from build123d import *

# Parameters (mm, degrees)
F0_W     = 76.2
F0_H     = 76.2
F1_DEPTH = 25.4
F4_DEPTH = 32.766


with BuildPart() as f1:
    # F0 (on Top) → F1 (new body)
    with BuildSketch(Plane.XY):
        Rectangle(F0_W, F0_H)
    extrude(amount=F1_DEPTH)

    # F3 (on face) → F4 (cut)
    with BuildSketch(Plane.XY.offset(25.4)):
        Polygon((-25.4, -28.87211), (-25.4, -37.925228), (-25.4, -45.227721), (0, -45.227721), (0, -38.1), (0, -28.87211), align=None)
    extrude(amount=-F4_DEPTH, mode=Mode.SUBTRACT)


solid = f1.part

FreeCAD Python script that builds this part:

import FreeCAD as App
import Part
import Sketcher
Q = App.Units.Quantity

doc = App.newDocument("Part")
body = doc.addObject("PartDesign::Body", "Body")

# Sketch on XY plane
sketch1 = doc.addObject("Sketcher::SketchObject", "Sketch")
body.addObject(sketch1)
sketch1.AttachmentSupport = (doc.XY_Plane, [""])
sketch1.MapMode = "FlatFace"
sketch1.addGeometry(Part.LineSegment(App.Vector(-38, 38, 0), App.Vector(-38, -38, 0)), False)
sketch1.addGeometry(Part.LineSegment(App.Vector(-38, -38, 0), App.Vector(38, -38, 0)), False)
sketch1.addGeometry(Part.LineSegment(App.Vector(38, -38, 0), App.Vector(38, 38, 0)), False)
sketch1.addGeometry(Part.LineSegment(App.Vector(38, 38, 0), App.Vector(-38, 38, 0)), False)
sketch1.addConstraint(Sketcher.Constraint("Coincident", 0, 2, 1, 1))
sketch1.addConstraint(Sketcher.Constraint("Coincident", 1, 2, 2, 1))
sketch1.addConstraint(Sketcher.Constraint("Coincident", 2, 2, 3, 1))
sketch1.addConstraint(Sketcher.Constraint("Coincident", 3, 2, 0, 1))
sketch1.addConstraint(Sketcher.Constraint("Vertical", 0))
sketch1.addConstraint(Sketcher.Constraint("Horizontal", 1))
sketch1.addConstraint(Sketcher.Constraint("Vertical", 2))
sketch1.addConstraint(Sketcher.Constraint("Horizontal", 3))
sketch1.addConstraint(Sketcher.Constraint("Symmetric", 0, 2, 2, 2, -1, 1))
sketch1.addConstraint(Sketcher.Constraint("Equal", 3, 0))
sketch1.addConstraint(Sketcher.Constraint("DistanceX", 1, 1, 1, 2, Q("3 in")))
pad1 = doc.addObject("PartDesign::Pad", "Pad")
body.addObject(pad1)
pad1.Profile = sketch1
pad1.Length = Q("1 in")

# Sketch on XY plane
sketch2 = doc.addObject("Sketcher::SketchObject", "Sketch001")
body.addObject(sketch2)
sketch2.AttachmentSupport = (doc.XY_Plane, [""])
sketch2.MapMode = "FlatFace"
sketch2.AttachmentOffset = App.Placement(App.Vector(0, 0, 1 * 25.4), App.Rotation())
sketch2.addGeometry(Part.LineSegment(App.Vector(-25, -29, 0), App.Vector(-25, -45, 0)), False)
sketch2.addGeometry(Part.LineSegment(App.Vector(-25, -45, 0), App.Vector(0, -45, 0)), False)
sketch2.addGeometry(Part.LineSegment(App.Vector(0, -45, 0), App.Vector(0, -29, 0)), False)
sketch2.addGeometry(Part.LineSegment(App.Vector(0, -29, 0), App.Vector(-25, -29, 0)), False)
sketch2.addConstraint(Sketcher.Constraint("Coincident", 0, 2, 1, 1))
sketch2.addConstraint(Sketcher.Constraint("Coincident", 1, 2, 2, 1))
sketch2.addConstraint(Sketcher.Constraint("Coincident", 2, 2, 3, 1))
sketch2.addConstraint(Sketcher.Constraint("Coincident", 3, 2, 0, 1))
sketch2.addConstraint(Sketcher.Constraint("Vertical", 0))
sketch2.addConstraint(Sketcher.Constraint("Horizontal", 1))
sketch2.addConstraint(Sketcher.Constraint("Vertical", 2))
sketch2.addConstraint(Sketcher.Constraint("Horizontal", 3))
sketch2.addConstraint(Sketcher.Constraint("PointOnObject", 1, 2, -2))
sketch2.addConstraint(Sketcher.Constraint("DistanceX", 1, 1, 1, 2, Q("1 in")))
sketch2.addConstraint(Sketcher.Constraint("DistanceY", 0, 2, 0, 1, Q("16.355611 mm")))
sketch2.addConstraint(Sketcher.Constraint("DistanceY", 0, 2, -1, 1, Q("45.227721 mm")))
pocket1 = doc.addObject("PartDesign::Pocket", "Pocket")
body.addObject(pocket1)
pocket1.Profile = sketch2
pocket1.Length = Q("1.29 in")

doc.recompute()
